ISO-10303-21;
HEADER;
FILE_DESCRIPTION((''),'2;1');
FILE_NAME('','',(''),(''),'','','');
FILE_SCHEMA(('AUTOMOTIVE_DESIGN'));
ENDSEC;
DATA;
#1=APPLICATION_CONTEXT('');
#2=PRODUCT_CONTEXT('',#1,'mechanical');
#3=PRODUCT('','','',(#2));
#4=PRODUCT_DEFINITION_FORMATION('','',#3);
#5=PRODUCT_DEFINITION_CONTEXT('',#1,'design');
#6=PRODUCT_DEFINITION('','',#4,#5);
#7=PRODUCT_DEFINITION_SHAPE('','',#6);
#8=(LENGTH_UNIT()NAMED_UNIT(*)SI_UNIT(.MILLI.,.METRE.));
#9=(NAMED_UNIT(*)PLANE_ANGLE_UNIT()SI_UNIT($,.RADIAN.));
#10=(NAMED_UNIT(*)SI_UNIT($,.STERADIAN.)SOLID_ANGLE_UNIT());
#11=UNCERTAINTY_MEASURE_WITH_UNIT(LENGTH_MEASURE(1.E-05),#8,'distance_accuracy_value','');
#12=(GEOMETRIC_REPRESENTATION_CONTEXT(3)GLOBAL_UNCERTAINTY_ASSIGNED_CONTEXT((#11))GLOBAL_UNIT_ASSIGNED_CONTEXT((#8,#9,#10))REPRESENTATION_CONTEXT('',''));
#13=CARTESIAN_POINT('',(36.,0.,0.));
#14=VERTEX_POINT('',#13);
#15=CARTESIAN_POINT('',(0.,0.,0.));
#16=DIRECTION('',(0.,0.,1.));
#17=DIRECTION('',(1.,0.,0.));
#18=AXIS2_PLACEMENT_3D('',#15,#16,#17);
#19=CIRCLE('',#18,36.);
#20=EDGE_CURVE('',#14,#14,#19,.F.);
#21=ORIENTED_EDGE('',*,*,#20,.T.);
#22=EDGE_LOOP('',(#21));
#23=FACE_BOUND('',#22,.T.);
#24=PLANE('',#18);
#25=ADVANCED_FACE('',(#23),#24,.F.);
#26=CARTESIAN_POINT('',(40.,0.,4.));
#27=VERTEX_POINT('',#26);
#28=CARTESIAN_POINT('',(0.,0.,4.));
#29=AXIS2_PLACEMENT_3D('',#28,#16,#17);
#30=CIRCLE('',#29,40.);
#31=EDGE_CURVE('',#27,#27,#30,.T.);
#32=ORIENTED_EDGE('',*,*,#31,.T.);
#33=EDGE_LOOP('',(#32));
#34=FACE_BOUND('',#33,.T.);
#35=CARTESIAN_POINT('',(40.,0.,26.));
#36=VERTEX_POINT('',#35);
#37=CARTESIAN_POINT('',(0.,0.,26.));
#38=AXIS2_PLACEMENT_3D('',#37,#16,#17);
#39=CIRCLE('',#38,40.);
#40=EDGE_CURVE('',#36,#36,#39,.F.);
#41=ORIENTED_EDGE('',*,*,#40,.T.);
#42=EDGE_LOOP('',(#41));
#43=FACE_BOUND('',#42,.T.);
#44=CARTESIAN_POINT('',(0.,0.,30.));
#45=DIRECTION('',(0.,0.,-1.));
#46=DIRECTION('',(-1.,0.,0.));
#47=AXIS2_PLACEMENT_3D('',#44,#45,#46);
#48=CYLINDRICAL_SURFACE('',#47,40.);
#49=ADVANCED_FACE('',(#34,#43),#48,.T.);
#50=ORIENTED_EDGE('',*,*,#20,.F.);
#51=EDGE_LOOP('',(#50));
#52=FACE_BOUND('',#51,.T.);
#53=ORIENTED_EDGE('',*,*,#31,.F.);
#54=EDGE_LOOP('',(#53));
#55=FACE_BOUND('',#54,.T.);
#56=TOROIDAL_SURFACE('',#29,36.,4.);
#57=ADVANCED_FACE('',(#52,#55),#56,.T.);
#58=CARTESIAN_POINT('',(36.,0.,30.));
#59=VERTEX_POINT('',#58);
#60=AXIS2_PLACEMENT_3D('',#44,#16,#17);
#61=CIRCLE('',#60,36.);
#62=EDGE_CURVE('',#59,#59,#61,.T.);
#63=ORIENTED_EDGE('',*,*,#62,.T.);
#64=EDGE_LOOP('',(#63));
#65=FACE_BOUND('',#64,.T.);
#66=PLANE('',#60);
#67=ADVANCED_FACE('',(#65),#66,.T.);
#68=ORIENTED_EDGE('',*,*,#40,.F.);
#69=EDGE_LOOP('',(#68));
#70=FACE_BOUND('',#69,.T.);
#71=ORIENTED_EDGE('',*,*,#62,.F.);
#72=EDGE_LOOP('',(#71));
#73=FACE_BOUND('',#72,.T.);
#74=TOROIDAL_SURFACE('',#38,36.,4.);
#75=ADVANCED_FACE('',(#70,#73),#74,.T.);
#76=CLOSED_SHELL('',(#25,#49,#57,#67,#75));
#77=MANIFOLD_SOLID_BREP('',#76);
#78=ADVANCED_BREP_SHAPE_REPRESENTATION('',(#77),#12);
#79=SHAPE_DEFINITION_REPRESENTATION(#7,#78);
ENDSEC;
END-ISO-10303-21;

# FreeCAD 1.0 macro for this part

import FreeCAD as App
import Part
import Sketcher

V = App.Vector


def edges_at(feature, points):
    """Names of the edges that pass closest to the given points."""
    edges = feature.Shape.Edges
    near = lambda p: min(range(len(edges)), key=lambda i: edges[i].distToShape(Part.Vertex(*p))[0])
    return sorted({f"Edge{near(p) + 1}" for p in points})

doc = App.newDocument("Part")
body = doc.addObject("PartDesign::Body", "Body")

sketch1 = body.newObject("Sketcher::SketchObject", "Sketch")
sketch1.AttachmentSupport = (doc.getObject("XY_Plane"), [""])
sketch1.MapMode = "FlatFace"
sketch1.addGeometry(Part.Circle(V(0, 0, 0), V(0, 0, 1), 40), False)
sketch1.addConstraint([
    Sketcher.Constraint("Coincident", 0, 3, -1, 1),
    Sketcher.Constraint("Diameter", 0, 80.0),
])
pad1 = body.newObject("PartDesign::Pad", "Pad")
pad1.Profile = sketch1
pad1.Length = 30
doc.recompute()

fillet = body.newObject("PartDesign::Fillet", "Fillet")
fillet.Base = (pad1, edges_at(pad1, [(-40, 0, 0), (-40, 0, 30)]))
fillet.Radius = 4

doc.recompute()
